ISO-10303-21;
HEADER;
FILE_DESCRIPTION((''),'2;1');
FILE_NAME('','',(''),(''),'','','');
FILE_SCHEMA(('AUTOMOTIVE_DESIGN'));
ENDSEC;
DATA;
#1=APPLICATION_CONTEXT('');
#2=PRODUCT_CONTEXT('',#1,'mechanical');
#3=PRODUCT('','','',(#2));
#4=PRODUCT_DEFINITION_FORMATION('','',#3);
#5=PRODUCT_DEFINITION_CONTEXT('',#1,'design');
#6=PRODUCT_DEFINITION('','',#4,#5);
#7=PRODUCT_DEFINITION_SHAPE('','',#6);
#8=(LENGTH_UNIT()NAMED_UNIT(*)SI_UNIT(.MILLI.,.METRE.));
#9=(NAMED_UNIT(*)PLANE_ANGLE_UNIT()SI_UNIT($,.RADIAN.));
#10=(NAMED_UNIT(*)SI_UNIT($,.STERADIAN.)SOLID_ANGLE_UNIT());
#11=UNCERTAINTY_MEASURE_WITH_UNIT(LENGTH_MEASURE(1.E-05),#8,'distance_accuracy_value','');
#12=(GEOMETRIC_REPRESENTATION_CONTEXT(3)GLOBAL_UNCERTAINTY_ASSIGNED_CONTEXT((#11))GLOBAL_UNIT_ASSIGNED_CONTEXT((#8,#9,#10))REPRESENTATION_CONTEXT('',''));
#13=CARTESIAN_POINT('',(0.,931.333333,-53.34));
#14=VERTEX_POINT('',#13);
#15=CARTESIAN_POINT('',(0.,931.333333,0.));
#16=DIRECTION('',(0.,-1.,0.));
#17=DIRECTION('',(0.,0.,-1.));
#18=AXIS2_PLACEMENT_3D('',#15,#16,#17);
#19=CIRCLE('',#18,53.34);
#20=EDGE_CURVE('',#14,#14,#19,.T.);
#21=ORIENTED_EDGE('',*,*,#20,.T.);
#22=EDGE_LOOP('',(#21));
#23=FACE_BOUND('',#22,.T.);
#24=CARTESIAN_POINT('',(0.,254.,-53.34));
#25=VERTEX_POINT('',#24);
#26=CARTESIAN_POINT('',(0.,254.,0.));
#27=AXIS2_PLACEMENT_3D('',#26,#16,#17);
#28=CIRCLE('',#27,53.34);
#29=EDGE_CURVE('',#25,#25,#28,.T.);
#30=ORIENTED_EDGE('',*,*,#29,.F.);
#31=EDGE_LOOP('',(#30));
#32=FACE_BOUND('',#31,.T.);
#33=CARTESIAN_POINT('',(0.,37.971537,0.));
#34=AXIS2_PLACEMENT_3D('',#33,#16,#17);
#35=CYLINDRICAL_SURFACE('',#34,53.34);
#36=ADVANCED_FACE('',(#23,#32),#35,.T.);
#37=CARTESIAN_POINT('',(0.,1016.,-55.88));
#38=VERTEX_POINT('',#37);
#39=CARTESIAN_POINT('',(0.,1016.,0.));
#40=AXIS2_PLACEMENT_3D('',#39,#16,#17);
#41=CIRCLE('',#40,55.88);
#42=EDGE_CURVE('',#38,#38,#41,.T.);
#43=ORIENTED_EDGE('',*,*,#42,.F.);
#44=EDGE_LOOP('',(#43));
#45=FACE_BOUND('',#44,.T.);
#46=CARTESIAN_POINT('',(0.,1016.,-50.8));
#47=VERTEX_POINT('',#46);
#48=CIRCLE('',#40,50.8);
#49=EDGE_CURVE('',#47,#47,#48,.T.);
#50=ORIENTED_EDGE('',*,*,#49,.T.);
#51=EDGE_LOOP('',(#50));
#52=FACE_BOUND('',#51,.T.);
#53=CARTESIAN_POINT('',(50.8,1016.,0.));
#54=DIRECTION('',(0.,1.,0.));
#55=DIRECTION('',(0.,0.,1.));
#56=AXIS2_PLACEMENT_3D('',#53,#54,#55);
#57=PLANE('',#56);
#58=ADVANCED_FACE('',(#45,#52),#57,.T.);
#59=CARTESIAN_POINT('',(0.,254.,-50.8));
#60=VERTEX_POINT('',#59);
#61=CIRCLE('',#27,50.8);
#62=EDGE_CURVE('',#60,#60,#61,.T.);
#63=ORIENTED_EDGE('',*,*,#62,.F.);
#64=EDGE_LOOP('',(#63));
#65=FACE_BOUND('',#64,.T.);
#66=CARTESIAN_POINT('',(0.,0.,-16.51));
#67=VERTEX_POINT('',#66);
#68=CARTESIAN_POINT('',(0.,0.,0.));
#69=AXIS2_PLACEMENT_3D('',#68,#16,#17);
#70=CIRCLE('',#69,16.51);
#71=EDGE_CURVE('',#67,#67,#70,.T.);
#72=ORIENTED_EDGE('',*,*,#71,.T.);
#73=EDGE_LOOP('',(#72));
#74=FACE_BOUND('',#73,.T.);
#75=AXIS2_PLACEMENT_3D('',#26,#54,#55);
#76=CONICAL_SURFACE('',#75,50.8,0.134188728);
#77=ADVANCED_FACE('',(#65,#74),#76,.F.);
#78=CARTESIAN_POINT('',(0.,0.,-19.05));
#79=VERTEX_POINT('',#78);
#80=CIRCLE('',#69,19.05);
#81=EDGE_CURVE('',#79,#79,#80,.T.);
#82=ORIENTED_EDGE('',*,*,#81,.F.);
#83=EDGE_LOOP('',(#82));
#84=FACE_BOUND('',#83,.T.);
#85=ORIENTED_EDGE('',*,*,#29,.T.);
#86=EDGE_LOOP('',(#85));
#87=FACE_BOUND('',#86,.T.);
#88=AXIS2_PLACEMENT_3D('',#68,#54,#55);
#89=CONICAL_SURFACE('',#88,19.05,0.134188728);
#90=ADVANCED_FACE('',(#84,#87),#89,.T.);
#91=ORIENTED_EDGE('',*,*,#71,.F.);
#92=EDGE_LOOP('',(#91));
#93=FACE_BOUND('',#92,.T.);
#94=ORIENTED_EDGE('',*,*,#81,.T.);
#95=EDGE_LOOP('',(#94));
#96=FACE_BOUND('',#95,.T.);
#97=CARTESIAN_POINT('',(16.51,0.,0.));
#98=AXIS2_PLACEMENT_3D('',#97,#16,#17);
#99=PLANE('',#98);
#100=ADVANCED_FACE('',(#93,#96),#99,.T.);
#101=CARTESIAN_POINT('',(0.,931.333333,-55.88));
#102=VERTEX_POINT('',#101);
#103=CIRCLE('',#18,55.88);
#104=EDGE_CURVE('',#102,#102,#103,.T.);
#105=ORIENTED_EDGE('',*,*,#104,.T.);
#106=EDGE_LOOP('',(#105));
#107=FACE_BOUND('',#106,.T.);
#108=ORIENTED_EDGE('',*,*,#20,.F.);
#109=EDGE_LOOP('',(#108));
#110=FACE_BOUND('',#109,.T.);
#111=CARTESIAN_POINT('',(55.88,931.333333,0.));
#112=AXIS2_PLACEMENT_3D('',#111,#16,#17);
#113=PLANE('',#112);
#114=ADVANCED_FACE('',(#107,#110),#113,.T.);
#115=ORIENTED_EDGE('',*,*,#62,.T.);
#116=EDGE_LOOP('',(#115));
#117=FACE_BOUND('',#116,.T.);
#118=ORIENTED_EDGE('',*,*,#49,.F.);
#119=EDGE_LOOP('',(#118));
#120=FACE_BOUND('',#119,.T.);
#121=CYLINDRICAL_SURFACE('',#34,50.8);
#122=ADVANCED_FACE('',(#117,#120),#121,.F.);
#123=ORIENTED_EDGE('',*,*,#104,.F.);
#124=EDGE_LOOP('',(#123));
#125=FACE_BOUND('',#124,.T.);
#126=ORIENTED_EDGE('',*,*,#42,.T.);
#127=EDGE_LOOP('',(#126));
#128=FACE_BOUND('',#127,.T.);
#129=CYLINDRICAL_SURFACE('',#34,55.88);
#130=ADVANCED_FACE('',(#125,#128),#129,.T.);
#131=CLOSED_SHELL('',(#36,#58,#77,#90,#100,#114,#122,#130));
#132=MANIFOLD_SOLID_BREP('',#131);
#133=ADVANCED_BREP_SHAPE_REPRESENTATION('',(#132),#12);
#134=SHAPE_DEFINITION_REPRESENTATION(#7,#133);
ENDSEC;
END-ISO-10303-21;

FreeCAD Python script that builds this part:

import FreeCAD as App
import Part
import Sketcher
from FreeCAD import Vector
Q = App.Units.Quantity

doc = App.newDocument("Part")
body = doc.addObject("PartDesign::Body", "Body")

# Sketch on XY plane
sketch1 = body.newObject("Sketcher::SketchObject", "Sketch")
sketch1.AttachmentSupport = (doc.getObject("XY_Plane"), [""])
sketch1.MapMode = "FlatFace"
sketch1.addGeometry([
    Part.LineSegment(Vector(19.1, 0, 0), Vector(53.3, 254, 0)),  # 0
    Part.LineSegment(Vector(53.3, 254, 0), Vector(53.3, 931.3, 0)),  # 1
    Part.LineSegment(Vector(53.3, 931.3, 0), Vector(55.9, 931.3, 0)),  # 2
    Part.LineSegment(Vector(55.9, 931.3, 0), Vector(55.9, 1016, 0)),  # 3
    Part.LineSegment(Vector(55.9, 1016, 0), Vector(50.8, 1016, 0)),  # 4
    Part.LineSegment(Vector(50.8, 1016, 0), Vector(50.8, 254, 0)),  # 5
    Part.LineSegment(Vector(50.8, 254, 0), Vector(16.5, 0, 0)),  # 6
    Part.LineSegment(Vector(16.5, 0, 0), Vector(19.1, 0, 0)),  # 7
], False)
sketch1.addConstraint([
    Sketcher.Constraint("Coincident", 0, 2, 1, 1),
    Sketcher.Constraint("Coincident", 1, 2, 2, 1),
    Sketcher.Constraint("Coincident", 2, 2, 3, 1),
    Sketcher.Constraint("Coincident", 3, 2, 4, 1),
    Sketcher.Constraint("Coincident", 4, 2, 5, 1),
    Sketcher.Constraint("Coincident", 5, 2, 6, 1),
    Sketcher.Constraint("Coincident", 6, 2, 7, 1),
    Sketcher.Constraint("Coincident", 7, 2, 0, 1),
    Sketcher.Constraint("Vertical", 1),
    Sketcher.Constraint("Horizontal", 2),
    Sketcher.Constraint("Vertical", 3),
    Sketcher.Constraint("Horizontal", 4),
    Sketcher.Constraint("Vertical", 5),
    Sketcher.Constraint("Horizontal", 7),
    Sketcher.Constraint("PointOnObject", 6, 2, -1),
    Sketcher.Constraint("Parallel", 0, 6),
    Sketcher.Constraint("Horizontal", 0, 2, 5, 2),
    Sketcher.Constraint("Equal", 2, 7),
    Sketcher.Constraint("DistanceY", 5, 2, 5, 1, Q("30 in")),
    Sketcher.Constraint("DistanceX", 2, 1, 2, 2, Q("0.1 in")),
    Sketcher.Constraint("DistanceY", -1, 1, 0, 2, Q("10 in")),
    Sketcher.Constraint("DistanceX", -1, 1, 4, 2, Q("2 in")),
    Sketcher.Constraint("DistanceX", -1, 1, 6, 2, Q("0.65 in")),
    Sketcher.Constraint("DistanceY", 1, 1, 1, 2, Q("677.333333 mm")),
])
revolution = body.newObject("PartDesign::Revolution", "Revolution")
revolution.Profile = sketch1
revolution.ReferenceAxis = (sketch1, ["V_Axis"])
revolution.Angle = 360

doc.recompute()
